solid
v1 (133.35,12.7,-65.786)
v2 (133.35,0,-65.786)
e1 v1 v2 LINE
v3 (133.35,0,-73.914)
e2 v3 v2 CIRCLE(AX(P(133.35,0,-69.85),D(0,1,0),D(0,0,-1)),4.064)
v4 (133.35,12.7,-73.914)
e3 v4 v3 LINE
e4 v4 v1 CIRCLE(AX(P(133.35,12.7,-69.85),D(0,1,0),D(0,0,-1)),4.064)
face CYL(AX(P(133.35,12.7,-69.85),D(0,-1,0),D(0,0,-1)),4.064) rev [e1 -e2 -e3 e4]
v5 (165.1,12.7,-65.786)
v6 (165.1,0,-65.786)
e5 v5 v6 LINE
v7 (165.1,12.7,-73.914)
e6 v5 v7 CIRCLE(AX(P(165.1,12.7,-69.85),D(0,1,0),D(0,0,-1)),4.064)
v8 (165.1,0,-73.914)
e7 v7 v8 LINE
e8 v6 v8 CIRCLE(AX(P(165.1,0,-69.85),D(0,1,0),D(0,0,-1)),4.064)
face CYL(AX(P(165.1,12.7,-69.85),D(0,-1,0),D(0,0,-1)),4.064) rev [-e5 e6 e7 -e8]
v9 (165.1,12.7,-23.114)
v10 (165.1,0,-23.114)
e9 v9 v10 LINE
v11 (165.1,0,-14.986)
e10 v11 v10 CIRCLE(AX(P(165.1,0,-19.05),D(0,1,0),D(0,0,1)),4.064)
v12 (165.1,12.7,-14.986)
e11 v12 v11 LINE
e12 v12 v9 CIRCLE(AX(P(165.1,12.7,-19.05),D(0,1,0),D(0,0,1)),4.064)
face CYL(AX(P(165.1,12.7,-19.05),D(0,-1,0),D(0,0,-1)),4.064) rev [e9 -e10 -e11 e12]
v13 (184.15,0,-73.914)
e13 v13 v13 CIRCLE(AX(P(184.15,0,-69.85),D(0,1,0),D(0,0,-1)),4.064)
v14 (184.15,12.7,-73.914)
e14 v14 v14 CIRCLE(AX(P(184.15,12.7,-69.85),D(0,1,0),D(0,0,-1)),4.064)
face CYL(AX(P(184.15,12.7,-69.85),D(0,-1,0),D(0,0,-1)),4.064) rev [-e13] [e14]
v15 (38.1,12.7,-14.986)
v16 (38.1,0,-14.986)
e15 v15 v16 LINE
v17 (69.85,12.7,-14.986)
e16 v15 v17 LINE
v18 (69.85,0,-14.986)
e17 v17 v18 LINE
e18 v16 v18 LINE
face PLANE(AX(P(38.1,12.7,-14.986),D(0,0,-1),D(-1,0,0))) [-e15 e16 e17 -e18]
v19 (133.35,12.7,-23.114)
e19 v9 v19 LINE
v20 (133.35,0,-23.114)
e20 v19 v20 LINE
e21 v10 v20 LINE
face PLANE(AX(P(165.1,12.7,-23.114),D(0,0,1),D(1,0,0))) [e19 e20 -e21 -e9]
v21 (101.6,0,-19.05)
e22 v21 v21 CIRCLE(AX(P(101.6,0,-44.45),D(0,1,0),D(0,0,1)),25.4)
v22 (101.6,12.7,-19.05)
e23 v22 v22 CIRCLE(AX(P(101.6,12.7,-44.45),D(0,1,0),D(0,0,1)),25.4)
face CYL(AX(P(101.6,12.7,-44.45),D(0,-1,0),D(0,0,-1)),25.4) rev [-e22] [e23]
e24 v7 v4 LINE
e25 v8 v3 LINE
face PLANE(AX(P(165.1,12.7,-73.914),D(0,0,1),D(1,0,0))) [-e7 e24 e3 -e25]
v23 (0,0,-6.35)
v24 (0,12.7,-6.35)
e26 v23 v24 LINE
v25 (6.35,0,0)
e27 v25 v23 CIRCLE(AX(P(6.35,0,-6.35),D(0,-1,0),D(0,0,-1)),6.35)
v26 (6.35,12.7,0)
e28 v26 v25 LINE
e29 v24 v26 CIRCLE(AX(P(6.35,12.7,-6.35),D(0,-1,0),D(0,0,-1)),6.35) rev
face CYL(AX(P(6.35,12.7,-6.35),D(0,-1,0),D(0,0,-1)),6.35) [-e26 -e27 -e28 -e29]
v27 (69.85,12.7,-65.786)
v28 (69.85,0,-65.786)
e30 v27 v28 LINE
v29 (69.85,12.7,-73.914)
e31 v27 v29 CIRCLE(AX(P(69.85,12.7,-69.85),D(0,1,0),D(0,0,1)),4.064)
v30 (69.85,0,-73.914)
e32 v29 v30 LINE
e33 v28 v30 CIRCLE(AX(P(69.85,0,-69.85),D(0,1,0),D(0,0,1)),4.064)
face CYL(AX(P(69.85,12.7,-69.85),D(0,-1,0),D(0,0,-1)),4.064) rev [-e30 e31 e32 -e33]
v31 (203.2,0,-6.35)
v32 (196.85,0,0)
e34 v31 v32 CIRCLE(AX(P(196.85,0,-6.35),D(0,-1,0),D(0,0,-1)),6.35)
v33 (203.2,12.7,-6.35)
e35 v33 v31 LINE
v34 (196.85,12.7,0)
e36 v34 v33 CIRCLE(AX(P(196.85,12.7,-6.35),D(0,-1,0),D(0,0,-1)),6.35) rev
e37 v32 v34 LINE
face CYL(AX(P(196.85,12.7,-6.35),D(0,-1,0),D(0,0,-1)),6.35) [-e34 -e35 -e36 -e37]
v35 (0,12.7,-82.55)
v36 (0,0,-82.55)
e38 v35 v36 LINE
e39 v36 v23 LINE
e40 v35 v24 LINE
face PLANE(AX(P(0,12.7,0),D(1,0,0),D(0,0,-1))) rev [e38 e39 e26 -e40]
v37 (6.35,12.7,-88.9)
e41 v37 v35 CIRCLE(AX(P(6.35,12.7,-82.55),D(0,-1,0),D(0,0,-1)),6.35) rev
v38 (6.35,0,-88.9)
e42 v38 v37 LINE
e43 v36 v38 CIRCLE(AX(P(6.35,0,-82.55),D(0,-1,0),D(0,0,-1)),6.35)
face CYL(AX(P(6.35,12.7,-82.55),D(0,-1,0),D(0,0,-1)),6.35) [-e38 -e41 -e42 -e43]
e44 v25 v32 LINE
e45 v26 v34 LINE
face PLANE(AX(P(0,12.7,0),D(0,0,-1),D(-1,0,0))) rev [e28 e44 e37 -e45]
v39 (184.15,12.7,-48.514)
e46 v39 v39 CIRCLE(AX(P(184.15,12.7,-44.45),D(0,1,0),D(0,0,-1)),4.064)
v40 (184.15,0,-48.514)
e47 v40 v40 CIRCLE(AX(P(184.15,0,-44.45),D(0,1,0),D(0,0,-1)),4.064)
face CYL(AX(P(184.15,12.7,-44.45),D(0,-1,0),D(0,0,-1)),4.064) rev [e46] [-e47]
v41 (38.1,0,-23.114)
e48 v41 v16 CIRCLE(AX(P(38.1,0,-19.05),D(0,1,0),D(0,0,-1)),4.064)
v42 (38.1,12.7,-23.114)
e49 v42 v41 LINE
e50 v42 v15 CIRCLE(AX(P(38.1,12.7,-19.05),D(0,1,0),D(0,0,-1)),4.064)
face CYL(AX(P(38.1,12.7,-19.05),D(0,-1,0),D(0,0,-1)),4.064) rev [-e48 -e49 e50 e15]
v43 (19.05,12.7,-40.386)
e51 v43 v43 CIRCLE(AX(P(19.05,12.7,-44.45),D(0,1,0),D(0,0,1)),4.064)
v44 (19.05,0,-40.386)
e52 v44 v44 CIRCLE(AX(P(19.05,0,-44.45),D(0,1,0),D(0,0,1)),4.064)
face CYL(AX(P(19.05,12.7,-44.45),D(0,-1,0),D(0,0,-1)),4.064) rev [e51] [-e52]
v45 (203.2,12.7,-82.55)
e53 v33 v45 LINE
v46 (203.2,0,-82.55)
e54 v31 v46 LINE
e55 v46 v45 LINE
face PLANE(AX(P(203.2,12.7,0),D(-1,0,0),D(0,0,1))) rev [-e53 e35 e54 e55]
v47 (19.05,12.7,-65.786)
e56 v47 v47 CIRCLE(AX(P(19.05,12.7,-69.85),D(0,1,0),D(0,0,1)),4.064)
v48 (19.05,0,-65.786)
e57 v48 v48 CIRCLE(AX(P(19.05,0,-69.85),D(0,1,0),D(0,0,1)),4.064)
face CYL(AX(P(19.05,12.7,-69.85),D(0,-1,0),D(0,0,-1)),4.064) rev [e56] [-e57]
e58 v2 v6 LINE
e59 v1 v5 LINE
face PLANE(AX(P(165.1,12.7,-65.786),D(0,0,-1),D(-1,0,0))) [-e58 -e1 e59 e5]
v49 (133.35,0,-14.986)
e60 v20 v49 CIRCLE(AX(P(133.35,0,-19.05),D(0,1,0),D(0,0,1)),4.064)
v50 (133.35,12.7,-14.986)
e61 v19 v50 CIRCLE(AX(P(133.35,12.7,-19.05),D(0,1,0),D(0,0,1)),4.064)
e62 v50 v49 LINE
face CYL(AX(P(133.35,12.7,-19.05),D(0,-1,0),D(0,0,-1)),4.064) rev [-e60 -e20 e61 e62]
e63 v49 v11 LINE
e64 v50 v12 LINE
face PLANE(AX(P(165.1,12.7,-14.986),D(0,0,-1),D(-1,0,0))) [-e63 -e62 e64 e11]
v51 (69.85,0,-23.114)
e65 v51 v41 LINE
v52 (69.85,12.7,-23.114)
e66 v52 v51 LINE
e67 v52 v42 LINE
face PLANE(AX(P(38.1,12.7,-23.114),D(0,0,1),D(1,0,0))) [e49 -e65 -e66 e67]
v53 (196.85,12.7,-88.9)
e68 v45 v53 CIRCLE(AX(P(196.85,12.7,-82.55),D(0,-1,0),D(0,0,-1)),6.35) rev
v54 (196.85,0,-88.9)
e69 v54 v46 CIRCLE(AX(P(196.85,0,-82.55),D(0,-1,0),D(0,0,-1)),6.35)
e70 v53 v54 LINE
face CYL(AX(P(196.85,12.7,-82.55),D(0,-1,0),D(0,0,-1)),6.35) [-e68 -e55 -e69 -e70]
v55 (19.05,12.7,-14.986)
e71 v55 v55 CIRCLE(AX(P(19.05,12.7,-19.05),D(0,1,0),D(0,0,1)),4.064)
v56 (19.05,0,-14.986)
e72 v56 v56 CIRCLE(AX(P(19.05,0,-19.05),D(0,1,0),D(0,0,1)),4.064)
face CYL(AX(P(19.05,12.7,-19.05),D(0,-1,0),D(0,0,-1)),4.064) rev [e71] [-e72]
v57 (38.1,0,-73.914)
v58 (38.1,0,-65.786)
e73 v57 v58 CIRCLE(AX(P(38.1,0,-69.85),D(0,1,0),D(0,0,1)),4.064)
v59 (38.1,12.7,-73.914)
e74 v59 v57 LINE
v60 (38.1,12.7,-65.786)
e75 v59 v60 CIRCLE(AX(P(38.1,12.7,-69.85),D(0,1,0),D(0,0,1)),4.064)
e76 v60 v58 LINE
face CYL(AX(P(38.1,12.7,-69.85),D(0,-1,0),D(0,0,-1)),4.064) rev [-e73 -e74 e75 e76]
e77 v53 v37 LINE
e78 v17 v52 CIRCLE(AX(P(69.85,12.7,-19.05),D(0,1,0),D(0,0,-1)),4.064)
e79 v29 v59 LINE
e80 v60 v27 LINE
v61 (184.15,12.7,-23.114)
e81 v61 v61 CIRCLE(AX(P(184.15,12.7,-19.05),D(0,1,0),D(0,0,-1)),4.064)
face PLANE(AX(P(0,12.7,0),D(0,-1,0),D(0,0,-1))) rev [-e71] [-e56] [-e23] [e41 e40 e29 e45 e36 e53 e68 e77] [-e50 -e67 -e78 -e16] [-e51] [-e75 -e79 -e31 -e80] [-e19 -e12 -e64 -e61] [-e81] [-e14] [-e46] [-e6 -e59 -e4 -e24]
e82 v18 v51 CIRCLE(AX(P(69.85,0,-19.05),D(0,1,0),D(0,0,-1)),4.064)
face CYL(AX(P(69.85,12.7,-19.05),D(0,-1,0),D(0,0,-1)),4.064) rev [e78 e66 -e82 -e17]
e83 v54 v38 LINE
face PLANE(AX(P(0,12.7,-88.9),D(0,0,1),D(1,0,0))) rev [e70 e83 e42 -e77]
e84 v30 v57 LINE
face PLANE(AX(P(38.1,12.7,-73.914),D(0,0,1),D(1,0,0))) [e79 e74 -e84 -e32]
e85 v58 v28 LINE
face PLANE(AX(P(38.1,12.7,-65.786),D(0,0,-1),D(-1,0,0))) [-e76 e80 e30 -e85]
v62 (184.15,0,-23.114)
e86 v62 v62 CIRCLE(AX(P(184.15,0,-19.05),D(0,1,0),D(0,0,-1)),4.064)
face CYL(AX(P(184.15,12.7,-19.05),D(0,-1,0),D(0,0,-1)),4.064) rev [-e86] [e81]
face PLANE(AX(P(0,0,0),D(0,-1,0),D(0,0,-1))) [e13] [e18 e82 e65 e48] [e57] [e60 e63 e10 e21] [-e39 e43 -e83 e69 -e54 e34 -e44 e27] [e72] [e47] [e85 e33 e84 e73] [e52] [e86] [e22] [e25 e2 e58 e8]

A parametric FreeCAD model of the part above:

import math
import FreeCAD as App
import Part
import Sketcher
Q = App.Units.Quantity


def edges_at(feature, points):
    """Names of the edges that pass closest to the given points."""
    edges = feature.Shape.Edges
    near = lambda p: min(range(len(edges)), key=lambda i: edges[i].distToShape(Part.Vertex(*p))[0])
    return sorted({f"Edge{near(p) + 1}" for p in points})


def add_polygon(sketch, points):
    """Adds a closed chain of lines whose ends are joined by coincident constraints."""
    first, n = sketch.GeometryCount, len(points)
    for a, b in zip(points, points[1:] + points[:1]):
        sketch.addGeometry(Part.LineSegment(App.Vector(*a, 0), App.Vector(*b, 0)), False)
    for i in range(n):
        sketch.addConstraint(Sketcher.Constraint("Coincident", first + i, 2, first + (i + 1) % n, 1))

doc = App.newDocument("Part")
body = doc.addObject("PartDesign::Body", "Body")

# Sketch on XZ plane
sketch1 = body.newObject("Sketcher::SketchObject", "Sketch")
sketch1.AttachmentSupport = (doc.getObject("XZ_Plane"), [""])
sketch1.MapMode = "FlatFace"
add_polygon(sketch1, [(0, -88.9), (0, 0), (203.2, 0), (203.2, -88.9)])  # lines 0-3
sketch1.addGeometry(Part.Circle(App.Vector(19.1, -19.1, 0), App.Vector(0, 0, 1), 4.1), False)  # 4
sketch1.addGeometry(Part.LineSegment(App.Vector(69.8, -15, 0), App.Vector(38.1, -15, 0)), False)  # 5
sketch1.addGeometry(Part.ArcOfCircle(Part.Circle(App.Vector(38.1, -19.1, 0), App.Vector(0, 0, 1), 4.1), math.radians(90), math.radians(270)), False)  # 6
sketch1.addGeometry(Part.LineSegment(App.Vector(38.1, -23.1, 0), App.Vector(69.8, -23.1, 0)), False)  # 7
sketch1.addGeometry(Part.ArcOfCircle(Part.Circle(App.Vector(69.8, -19.1, 0), App.Vector(0, 0, 1), 4.1), math.radians(-90), math.radians(90)), False)  # 8
sketch1.addGeometry(Part.Circle(App.Vector(19.1, -44.5, 0), App.Vector(0, 0, 1), 4.1), False)  # 9
sketch1.addGeometry(Part.ArcOfCircle(Part.Circle(App.Vector(165.1, -19.1, 0), App.Vector(0, 0, 1), 4.1), math.radians(-90), math.radians(90)), False)  # 10
sketch1.addGeometry(Part.LineSegment(App.Vector(165.1, -15, 0), App.Vector(133.3, -15, 0)), False)  # 11
sketch1.addGeometry(Part.ArcOfCircle(Part.Circle(App.Vector(133.3, -19.1, 0), App.Vector(0, 0, 1), 4.1), math.radians(90), math.radians(270)), False)  # 12
sketch1.addGeometry(Part.LineSegment(App.Vector(133.3, -23.1, 0), App.Vector(165.1, -23.1, 0)), False)  # 13
sketch1.addGeometry(Part.Circle(App.Vector(184.2, -19.1, 0), App.Vector(0, 0, 1), 4.1), False)  # 14
sketch1.addGeometry(Part.Circle(App.Vector(101.6, -44.5, 0), App.Vector(0, 0, 1), 25.4), False)  # 15
sketch1.addGeometry(Part.Circle(App.Vector(184.2, -44.5, 0), App.Vector(0, 0, 1), 4.1), False)  # 16
sketch1.addGeometry(Part.Circle(App.Vector(19.1, -69.8, 0), App.Vector(0, 0, 1), 4.1), False)  # 17
sketch1.addGeometry(Part.ArcOfCircle(Part.Circle(App.Vector(38.1, -69.8, 0), App.Vector(0, 0, 1), 4.1), math.radians(90), math.radians(270)), False)  # 18
sketch1.addGeometry(Part.LineSegment(App.Vector(38.1, -73.9, 0), App.Vector(69.8, -73.9, 0)), False)  # 19
sketch1.addGeometry(Part.ArcOfCircle(Part.Circle(App.Vector(69.8, -69.8, 0), App.Vector(0, 0, 1), 4.1), math.radians(-90), math.radians(90)), False)  # 20
sketch1.addGeometry(Part.LineSegment(App.Vector(69.8, -65.8, 0), App.Vector(38.1, -65.8, 0)), False)  # 21
sketch1.addGeometry(Part.LineSegment(App.Vector(133.3, -73.9, 0), App.Vector(165.1, -73.9, 0)), False)  # 22
sketch1.addGeometry(Part.ArcOfCircle(Part.Circle(App.Vector(165.1, -69.8, 0), App.Vector(0, 0, 1), 4.1), math.radians(-90), math.radians(90)), False)  # 23
sketch1.addGeometry(Part.LineSegment(App.Vector(165.1, -65.8, 0), App.Vector(133.3, -65.8, 0)), False)  # 24
sketch1.addGeometry(Part.ArcOfCircle(Part.Circle(App.Vector(133.3, -69.8, 0), App.Vector(0, 0, 1), 4.1), math.radians(90), math.radians(270)), False)  # 25
sketch1.addGeometry(Part.Circle(App.Vector(184.2, -69.8, 0), App.Vector(0, 0, 1), 4.1), False)  # 26
sketch1.addConstraint([
    Sketcher.Constraint("Tangent", 5, 2, 6, 1),
    Sketcher.Constraint("Tangent", 6, 2, 7, 1),
    Sketcher.Constraint("Tangent", 7, 2, 8, 1),
    Sketcher.Constraint("Tangent", 8, 2, 5, 1),
    Sketcher.Constraint("Tangent", 10, 2, 11, 1),
    Sketcher.Constraint("Tangent", 11, 2, 12, 1),
    Sketcher.Constraint("Tangent", 12, 2, 13, 1),
    Sketcher.Constraint("Tangent", 13, 2, 10, 1),
    Sketcher.Constraint("Tangent", 18, 2, 19, 1),
    Sketcher.Constraint("Tangent", 19, 2, 20, 1),
    Sketcher.Constraint("Tangent", 20, 2, 21, 1),
    Sketcher.Constraint("Tangent", 21, 2, 18, 1),
    Sketcher.Constraint("Tangent", 22, 2, 23, 1),
    Sketcher.Constraint("Tangent", 23, 2, 24, 1),
    Sketcher.Constraint("Tangent", 24, 2, 25, 1),
    Sketcher.Constraint("Tangent", 25, 2, 22, 1),
    Sketcher.Constraint("Vertical", 0),
    Sketcher.Constraint("Horizontal", 1),
    Sketcher.Constraint("Vertical", 2),
    Sketcher.Constraint("Horizontal", 3),
    Sketcher.Constraint("Horizontal", 5),
    Sketcher.Constraint("Horizontal", 7),
    Sketcher.Constraint("Horizontal", 11),
    Sketcher.Constraint("Horizontal", 13),
    Sketcher.Constraint("Horizontal", 19),
    Sketcher.Constraint("Horizontal", 21),
    Sketcher.Constraint("Horizontal", 22),
    Sketcher.Constraint("Horizontal", 24),
    Sketcher.Constraint("Coincident", 0, 2, -1, 1),
    Sketcher.Constraint("Equal", 4, 6),
    Sketcher.Constraint("Equal", 8, 9),
    Sketcher.Constraint("Equal", 9, 10),
    Sketcher.Constraint("Equal", 12, 14),
    Sketcher.Constraint("Equal", 14, 16),
    Sketcher.Constraint("Equal", 16, 17),
    Sketcher.Constraint("Equal", 17, 18),
    Sketcher.Constraint("Equal", 20, 23),
    Sketcher.Constraint("Equal", 25, 26),
    Sketcher.Constraint("Horizontal", 4, 3, 6, 3),
    Sketcher.Constraint("Horizontal", 8, 3, 10, 3),
    Sketcher.Constraint("Horizontal", 12, 3, 14, 3),
    Sketcher.Constraint("Horizontal", 9, 3, 15, 3),
    Sketcher.Constraint("Horizontal", 15, 3, 16, 3),
    Sketcher.Constraint("Horizontal", 17, 3, 18, 3),
    Sketcher.Constraint("Horizontal", 20, 3, 23, 3),
    Sketcher.Constraint("Horizontal", 25, 3, 26, 3),
    Sketcher.Constraint("Vertical", 4, 3, 9, 3),
    Sketcher.Constraint("Vertical", 14, 3, 16, 3),
    Sketcher.Constraint("Vertical", 9, 3, 17, 3),
    Sketcher.Constraint("Vertical", 6, 3, 18, 3),
    Sketcher.Constraint("Vertical", 8, 3, 20, 3),
    Sketcher.Constraint("Vertical", 10, 3, 23, 3),
    Sketcher.Constraint("Vertical", 12, 3, 25, 3),
    Sketcher.Constraint("Vertical", 16, 3, 26, 3),
    Sketcher.Constraint("Equal", 7, 11),
    Sketcher.Constraint("Diameter", 15, Q("2 in")),
    Sketcher.Constraint("Diameter", 4, Q("0.32 in")),
    Sketcher.Constraint("DistanceX", 1, 1, 1, 2, Q("8 in")),
    Sketcher.Constraint("DistanceY", 0, 1, 0, 2, Q("3.5 in")),
    Sketcher.Constraint("DistanceX", -1, 1, 15, 3, Q("4 in")),
    Sketcher.Constraint("DistanceX", 4, 3, 8, 3, Q("2 in")),
    Sketcher.Constraint("DistanceY", 9, 3, 4, 3, Q("1 in")),
    Sketcher.Constraint("DistanceX", 6, 3, 10, 3, Q("5 in")),
    Sketcher.Constraint("DistanceX", 12, 3, 14, 3, Q("2 in")),
    Sketcher.Constraint("DistanceY", 17, 3, 9, 3, Q("1 in")),
    Sketcher.Constraint("DistanceX", 5, 2, 5, 1, Q("1.25 in")),
    Sketcher.Constraint("DistanceX", -1, 1, 6, 3, Q("1.5 in")),
    Sketcher.Constraint("DistanceY", 4, 3, -1, 1, Q("0.75 in")),
])
pad1 = body.newObject("PartDesign::Pad", "Pad")
pad1.Profile = sketch1
pad1.Length = Q("0.5 in")
pad1.Reversed = True
doc.recompute()

fillet = body.newObject("PartDesign::Fillet", "Fillet")
fillet.Base = (pad1, edges_at(pad1, [
    (0, 6.35, -88.9),
    (203.2, 6.35, -88.9),
    (203.2, 6.35, 0),
    (0, 6.35, 0),
]))
fillet.Radius = Q("0.25 in")

doc.recompute()
